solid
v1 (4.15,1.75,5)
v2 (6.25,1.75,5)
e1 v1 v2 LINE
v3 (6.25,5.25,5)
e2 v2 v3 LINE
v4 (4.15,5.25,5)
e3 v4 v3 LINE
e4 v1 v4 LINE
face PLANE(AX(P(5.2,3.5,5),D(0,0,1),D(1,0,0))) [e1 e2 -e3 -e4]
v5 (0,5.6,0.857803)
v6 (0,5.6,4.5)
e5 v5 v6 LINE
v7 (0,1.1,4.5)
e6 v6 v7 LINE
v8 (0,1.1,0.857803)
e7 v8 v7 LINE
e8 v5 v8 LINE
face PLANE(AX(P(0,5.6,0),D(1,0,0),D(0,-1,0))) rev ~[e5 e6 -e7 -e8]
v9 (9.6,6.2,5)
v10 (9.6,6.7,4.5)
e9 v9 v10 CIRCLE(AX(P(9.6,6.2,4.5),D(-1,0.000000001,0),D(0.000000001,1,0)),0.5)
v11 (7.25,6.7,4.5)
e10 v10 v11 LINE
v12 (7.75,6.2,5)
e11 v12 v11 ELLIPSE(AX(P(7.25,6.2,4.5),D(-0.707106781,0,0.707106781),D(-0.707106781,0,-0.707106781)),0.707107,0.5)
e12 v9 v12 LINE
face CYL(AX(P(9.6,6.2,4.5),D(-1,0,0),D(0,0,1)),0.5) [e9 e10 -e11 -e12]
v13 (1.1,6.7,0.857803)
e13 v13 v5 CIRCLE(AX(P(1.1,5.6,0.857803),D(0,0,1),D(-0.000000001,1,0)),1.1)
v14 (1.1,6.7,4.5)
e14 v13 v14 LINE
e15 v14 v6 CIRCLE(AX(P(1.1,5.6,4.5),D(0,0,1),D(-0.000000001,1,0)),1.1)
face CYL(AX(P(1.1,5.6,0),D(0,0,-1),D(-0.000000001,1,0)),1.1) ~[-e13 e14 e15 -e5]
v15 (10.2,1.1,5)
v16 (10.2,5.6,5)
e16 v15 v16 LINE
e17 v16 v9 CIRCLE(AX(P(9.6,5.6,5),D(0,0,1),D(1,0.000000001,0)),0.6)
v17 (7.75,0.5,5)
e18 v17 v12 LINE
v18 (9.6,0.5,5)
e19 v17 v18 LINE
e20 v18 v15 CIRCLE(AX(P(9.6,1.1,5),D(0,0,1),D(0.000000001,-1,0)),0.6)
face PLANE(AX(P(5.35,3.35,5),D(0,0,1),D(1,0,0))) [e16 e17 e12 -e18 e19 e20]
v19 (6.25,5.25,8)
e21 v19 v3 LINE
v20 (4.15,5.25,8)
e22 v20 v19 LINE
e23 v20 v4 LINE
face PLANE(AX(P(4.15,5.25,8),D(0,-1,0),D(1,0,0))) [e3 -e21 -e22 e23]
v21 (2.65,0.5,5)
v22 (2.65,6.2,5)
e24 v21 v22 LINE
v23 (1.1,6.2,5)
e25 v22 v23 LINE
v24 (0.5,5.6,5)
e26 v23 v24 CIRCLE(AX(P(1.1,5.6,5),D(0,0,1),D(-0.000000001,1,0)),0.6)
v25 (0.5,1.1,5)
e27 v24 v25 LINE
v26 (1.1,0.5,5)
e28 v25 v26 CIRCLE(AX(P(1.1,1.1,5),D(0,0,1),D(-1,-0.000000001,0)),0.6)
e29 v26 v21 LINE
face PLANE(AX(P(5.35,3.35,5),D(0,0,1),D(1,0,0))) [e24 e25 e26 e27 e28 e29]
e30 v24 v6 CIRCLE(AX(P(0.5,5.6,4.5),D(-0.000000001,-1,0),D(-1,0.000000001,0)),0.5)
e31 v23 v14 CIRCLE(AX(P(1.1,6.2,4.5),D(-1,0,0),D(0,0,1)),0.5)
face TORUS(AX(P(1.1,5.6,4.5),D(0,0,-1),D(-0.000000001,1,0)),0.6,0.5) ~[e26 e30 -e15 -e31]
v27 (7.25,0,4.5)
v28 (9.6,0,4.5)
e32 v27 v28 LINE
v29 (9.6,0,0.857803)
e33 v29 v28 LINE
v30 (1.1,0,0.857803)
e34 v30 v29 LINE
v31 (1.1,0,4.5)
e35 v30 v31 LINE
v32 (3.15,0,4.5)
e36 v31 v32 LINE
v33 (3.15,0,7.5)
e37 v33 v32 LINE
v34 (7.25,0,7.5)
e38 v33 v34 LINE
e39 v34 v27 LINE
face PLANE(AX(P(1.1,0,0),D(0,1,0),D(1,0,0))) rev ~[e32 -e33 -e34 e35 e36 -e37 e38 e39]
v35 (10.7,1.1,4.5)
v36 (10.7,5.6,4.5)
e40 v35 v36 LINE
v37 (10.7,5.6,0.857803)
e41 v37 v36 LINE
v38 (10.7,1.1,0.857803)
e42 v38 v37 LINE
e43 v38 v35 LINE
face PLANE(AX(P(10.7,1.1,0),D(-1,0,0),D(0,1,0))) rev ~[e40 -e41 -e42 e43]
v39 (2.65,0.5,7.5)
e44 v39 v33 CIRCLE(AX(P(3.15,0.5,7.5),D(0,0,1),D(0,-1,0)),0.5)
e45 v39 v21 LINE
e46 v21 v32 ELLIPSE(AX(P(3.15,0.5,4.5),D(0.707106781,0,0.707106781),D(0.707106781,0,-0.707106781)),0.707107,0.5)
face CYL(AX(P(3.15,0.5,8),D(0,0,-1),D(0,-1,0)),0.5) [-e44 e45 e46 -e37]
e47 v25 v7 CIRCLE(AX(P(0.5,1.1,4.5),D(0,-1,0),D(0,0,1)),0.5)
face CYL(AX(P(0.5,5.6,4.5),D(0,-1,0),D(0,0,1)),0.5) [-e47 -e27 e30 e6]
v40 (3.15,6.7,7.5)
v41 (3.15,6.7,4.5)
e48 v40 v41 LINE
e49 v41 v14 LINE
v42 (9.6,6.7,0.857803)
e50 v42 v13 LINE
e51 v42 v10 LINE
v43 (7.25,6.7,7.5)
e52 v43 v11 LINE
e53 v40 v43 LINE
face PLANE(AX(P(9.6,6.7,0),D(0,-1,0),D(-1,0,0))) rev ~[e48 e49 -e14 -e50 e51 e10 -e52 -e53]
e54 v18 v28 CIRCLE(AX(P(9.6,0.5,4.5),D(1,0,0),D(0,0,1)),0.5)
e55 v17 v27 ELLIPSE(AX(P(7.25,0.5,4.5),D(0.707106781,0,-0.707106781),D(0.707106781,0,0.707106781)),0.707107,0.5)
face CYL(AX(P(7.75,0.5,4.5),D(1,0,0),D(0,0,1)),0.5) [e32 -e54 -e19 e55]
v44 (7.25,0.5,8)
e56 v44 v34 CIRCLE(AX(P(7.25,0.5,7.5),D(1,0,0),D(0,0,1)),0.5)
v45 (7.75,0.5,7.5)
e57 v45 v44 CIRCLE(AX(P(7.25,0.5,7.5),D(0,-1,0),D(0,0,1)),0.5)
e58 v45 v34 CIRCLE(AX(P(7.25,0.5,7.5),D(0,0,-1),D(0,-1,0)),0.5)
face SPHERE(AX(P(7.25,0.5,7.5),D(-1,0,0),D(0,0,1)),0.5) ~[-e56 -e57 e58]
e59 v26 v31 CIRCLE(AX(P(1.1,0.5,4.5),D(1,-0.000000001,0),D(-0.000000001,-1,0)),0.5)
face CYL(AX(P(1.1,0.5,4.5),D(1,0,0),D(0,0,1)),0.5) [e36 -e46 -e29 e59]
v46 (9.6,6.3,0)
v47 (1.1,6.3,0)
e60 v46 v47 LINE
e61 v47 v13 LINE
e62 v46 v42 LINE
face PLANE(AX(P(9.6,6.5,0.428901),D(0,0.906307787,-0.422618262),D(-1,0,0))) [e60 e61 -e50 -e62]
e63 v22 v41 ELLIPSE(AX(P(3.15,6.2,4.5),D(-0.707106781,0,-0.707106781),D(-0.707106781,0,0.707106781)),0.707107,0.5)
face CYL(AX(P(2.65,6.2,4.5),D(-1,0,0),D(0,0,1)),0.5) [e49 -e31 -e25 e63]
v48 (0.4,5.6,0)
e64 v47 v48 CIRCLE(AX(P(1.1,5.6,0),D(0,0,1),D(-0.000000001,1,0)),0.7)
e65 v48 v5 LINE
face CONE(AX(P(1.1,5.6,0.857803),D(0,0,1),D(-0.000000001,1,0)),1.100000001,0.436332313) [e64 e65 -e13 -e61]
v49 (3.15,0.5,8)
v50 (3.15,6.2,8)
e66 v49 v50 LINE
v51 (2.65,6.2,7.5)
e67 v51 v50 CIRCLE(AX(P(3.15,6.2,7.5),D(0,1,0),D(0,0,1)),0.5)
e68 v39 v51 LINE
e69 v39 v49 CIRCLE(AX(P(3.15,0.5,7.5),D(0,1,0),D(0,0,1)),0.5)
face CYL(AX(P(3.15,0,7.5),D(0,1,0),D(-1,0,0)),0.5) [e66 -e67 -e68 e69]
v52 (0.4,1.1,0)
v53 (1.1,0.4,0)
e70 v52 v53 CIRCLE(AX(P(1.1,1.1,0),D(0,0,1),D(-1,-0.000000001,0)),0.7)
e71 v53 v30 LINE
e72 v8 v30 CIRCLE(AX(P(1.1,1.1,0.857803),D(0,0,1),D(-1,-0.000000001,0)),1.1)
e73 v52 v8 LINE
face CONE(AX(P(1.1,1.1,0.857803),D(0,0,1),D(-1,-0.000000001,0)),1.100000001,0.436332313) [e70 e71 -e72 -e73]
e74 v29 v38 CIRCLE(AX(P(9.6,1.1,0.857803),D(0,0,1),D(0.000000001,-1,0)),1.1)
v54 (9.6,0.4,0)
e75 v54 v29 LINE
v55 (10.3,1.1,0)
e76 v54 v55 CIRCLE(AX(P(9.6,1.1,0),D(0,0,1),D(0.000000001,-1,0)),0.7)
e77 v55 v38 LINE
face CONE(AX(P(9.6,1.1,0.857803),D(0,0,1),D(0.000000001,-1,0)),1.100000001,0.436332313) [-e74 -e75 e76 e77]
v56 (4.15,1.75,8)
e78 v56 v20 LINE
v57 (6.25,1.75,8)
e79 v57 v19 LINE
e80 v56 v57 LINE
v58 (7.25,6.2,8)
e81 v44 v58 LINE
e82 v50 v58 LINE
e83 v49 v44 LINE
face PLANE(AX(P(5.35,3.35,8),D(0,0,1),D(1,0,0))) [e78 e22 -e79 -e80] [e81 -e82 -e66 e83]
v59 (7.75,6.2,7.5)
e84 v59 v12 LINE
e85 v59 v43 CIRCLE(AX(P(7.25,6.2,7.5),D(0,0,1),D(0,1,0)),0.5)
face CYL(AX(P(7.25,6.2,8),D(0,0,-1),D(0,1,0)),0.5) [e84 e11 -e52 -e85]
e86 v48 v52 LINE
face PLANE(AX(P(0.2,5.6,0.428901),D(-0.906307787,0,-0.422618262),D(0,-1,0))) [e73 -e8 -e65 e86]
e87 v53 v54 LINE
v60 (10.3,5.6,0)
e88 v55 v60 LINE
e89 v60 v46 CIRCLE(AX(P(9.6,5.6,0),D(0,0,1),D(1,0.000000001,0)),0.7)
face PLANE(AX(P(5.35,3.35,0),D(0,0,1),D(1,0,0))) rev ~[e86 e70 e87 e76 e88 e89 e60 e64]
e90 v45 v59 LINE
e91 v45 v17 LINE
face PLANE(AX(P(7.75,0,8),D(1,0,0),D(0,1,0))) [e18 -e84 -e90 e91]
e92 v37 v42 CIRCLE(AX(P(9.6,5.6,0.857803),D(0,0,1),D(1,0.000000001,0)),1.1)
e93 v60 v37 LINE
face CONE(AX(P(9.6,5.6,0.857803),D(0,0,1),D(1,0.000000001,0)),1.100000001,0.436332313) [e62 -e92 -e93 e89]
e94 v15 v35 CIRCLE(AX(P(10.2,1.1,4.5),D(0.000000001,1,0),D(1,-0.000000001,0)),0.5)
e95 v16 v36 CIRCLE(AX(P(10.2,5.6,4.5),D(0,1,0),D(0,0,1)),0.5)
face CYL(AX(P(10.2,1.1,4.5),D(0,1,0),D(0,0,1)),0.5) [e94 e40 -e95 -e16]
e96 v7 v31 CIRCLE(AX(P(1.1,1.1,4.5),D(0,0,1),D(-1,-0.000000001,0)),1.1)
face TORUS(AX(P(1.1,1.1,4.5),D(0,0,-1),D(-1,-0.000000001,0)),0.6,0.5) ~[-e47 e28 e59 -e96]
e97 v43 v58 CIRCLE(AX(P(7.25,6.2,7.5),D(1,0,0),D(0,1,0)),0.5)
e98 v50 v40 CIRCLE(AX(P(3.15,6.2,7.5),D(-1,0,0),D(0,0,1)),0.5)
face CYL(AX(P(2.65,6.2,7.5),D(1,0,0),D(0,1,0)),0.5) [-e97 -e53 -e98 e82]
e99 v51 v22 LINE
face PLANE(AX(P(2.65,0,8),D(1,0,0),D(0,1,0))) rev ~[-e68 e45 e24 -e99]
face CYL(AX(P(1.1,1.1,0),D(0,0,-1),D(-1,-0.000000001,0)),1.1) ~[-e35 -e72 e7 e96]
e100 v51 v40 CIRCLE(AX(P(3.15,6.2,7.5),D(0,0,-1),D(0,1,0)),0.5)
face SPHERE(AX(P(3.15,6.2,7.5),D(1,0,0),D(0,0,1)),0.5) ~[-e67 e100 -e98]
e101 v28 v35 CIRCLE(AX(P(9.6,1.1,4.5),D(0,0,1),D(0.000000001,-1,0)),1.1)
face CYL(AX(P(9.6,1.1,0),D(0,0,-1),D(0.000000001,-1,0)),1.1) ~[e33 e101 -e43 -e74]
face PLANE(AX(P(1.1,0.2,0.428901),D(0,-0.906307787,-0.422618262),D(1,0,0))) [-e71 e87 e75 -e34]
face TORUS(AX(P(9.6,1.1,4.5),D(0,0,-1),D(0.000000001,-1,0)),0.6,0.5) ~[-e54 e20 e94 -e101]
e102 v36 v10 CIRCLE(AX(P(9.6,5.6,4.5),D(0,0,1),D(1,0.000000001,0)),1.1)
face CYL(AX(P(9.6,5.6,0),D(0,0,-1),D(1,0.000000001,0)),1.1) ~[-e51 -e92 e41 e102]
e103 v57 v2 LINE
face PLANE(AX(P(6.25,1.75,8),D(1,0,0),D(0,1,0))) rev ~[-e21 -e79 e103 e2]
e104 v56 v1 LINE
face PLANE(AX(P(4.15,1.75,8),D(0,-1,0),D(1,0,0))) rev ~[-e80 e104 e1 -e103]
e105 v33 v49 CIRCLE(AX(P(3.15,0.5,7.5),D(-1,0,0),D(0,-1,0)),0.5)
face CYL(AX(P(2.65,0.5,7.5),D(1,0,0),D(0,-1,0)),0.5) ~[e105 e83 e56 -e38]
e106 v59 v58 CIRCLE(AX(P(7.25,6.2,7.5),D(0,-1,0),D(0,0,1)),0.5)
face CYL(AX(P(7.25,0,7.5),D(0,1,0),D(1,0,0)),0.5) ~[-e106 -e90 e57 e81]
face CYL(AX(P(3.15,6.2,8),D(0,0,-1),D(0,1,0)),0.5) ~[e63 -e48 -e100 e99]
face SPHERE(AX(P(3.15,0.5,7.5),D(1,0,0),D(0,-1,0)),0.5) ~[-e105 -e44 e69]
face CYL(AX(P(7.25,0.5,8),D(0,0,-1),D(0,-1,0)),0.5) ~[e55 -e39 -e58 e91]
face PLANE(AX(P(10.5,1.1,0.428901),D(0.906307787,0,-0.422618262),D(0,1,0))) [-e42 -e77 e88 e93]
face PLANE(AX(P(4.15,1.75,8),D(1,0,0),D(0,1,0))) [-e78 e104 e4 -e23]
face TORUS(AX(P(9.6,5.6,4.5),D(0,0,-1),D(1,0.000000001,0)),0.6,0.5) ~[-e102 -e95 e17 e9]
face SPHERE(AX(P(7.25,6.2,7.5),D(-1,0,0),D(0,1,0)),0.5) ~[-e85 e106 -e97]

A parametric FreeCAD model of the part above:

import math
import FreeCAD as App
import Part
import Sketcher


def edges_at(feature, points):
    """Names of the edges that pass closest to the given points."""
    edges = feature.Shape.Edges
    near = lambda p: min(range(len(edges)), key=lambda i: edges[i].distToShape(Part.Vertex(*p))[0])
    return sorted({f"Edge{near(p) + 1}" for p in points})

doc = App.newDocument("Part")
body = doc.addObject("PartDesign::Body", "Body")

sketch1 = body.newObject("Sketcher::SketchObject", "Sketch")
sketch1.AttachmentSupport = (doc.getObject("XY_Plane"), [""])
sketch1.MapMode = "FlatFace"
sketch1.addGeometry([
    Part.LineSegment(App.Vector(1.1, 0, 0), App.Vector(9.6, 0, 0)),
    Part.ArcOfCircle(Part.Circle(App.Vector(9.6, 1.1, 0), App.Vector(0, 0, 1), 1.1), math.radians(-90), math.radians(0)),
    Part.LineSegment(App.Vector(10.7, 1.1, 0), App.Vector(10.7, 5.6, 0)),
    Part.ArcOfCircle(Part.Circle(App.Vector(9.6, 5.6, 0), App.Vector(0, 0, 1), 1.1), math.radians(0), math.radians(90)),
    Part.LineSegment(App.Vector(9.6, 6.7, 0), App.Vector(1.1, 6.7, 0)),
    Part.ArcOfCircle(Part.Circle(App.Vector(1.1, 5.6, 0), App.Vector(0, 0, 1), 1.1), math.radians(90), math.radians(180)),
    Part.LineSegment(App.Vector(0, 5.6, 0), App.Vector(0, 1.1, 0)),
    Part.ArcOfCircle(Part.Circle(App.Vector(1.1, 1.1, 0), App.Vector(0, 0, 1), 1.1), math.radians(-180), math.radians(-90)),
], False)
sketch1.addConstraint([
    Sketcher.Constraint("Tangent", 0, 2, 1, 1),
    Sketcher.Constraint("Tangent", 1, 2, 2, 1),
    Sketcher.Constraint("Tangent", 2, 2, 3, 1),
    Sketcher.Constraint("Tangent", 3, 2, 4, 1),
    Sketcher.Constraint("Tangent", 4, 2, 5, 1),
    Sketcher.Constraint("Tangent", 5, 2, 6, 1),
    Sketcher.Constraint("Tangent", 6, 2, 7, 1),
    Sketcher.Constraint("Tangent", 7, 2, 0, 1),
    Sketcher.Constraint("Horizontal", 0),
    Sketcher.Constraint("Vertical", 2),
    Sketcher.Constraint("Horizontal", 4),
    Sketcher.Constraint("Vertical", 6),
    Sketcher.Constraint("Equal", 1, 3),
    Sketcher.Constraint("Equal", 3, 5),
    Sketcher.Constraint("Equal", 5, 7),
    Sketcher.Constraint("PointOnObject", 0, 2, -1),
    Sketcher.Constraint("PointOnObject", 5, 2, -2),
    Sketcher.Constraint("Radius", 1, 1.1),
    Sketcher.Constraint("DistanceX", 0, 1, 0, 2, 8.5),
    Sketcher.Constraint("DistanceY", 2, 1, 2, 2, 4.5),
])
pad1 = body.newObject("PartDesign::Pad", "Pad")
pad1.Profile = sketch1
pad1.Length = 8

sketch2 = body.newObject("Sketcher::SketchObject", "Sketch001")
sketch2.AttachmentSupport = (doc.getObject("XY_Plane"), [""])
sketch2.MapMode = "FlatFace"
sketch2.AttachmentOffset = App.Placement(App.Vector(0, 0, 8), App.Rotation())
sketch2.addGeometry([
    Part.LineSegment(App.Vector(4.2, 5.2, 0), App.Vector(4.2, 1.8, 0)),
    Part.LineSegment(App.Vector(4.2, 1.8, 0), App.Vector(6.2, 1.8, 0)),
    Part.LineSegment(App.Vector(6.2, 1.8, 0), App.Vector(6.2, 5.2, 0)),
    Part.LineSegment(App.Vector(6.2, 5.2, 0), App.Vector(4.2, 5.2, 0)),
], False)
sketch2.addConstraint([
    Sketcher.Constraint("Coincident", 0, 2, 1, 1),
    Sketcher.Constraint("Coincident", 1, 2, 2, 1),
    Sketcher.Constraint("Coincident", 2, 2, 3, 1),
    Sketcher.Constraint("Coincident", 3, 2, 0, 1),
    Sketcher.Constraint("Vertical", 0),
    Sketcher.Constraint("Horizontal", 1),
    Sketcher.Constraint("Vertical", 2),
    Sketcher.Constraint("Horizontal", 3),
    Sketcher.Constraint("DistanceX", 1, 1, 1, 2, 2.1),
    Sketcher.Constraint("DistanceY", 0, 2, 0, 1, 3.5),
    Sketcher.Constraint("DistanceX", -1, 1, 0, 2, 4.15),
    Sketcher.Constraint("DistanceY", -1, 1, 0, 2, 1.75),
])
pocket1 = body.newObject("PartDesign::Pocket", "Pocket")
pocket1.Profile = sketch2
pocket1.Length = 3

sketch3 = body.newObject("Sketcher::SketchObject", "Sketch002")
sketch3.AttachmentSupport = (doc.getObject("XY_Plane"), [""])
sketch3.MapMode = "FlatFace"
sketch3.AttachmentOffset = App.Placement(App.Vector(0, 0, 8), App.Rotation())
sketch3.addGeometry([
    Part.LineSegment(App.Vector(-2, 9, 0), App.Vector(-2, -2, 0)),
    Part.LineSegment(App.Vector(-2, -2, 0), App.Vector(13, -2, 0)),
    Part.LineSegment(App.Vector(13, -2, 0), App.Vector(13, 9, 0)),
    Part.LineSegment(App.Vector(13, 9, 0), App.Vector(-2, 9, 0)),
    Part.LineSegment(App.Vector(8, 0, 0), App.Vector(3, 0, 0)),
    Part.LineSegment(App.Vector(3, 0, 0), App.Vector(3, 7, 0)),
    Part.LineSegment(App.Vector(3, 7, 0), App.Vector(8, 7, 0)),
    Part.LineSegment(App.Vector(8, 7, 0), App.Vector(8, 0, 0)),
], False)
sketch3.addConstraint([
    Sketcher.Constraint("Coincident", 0, 2, 1, 1),
    Sketcher.Constraint("Coincident", 1, 2, 2, 1),
    Sketcher.Constraint("Coincident", 2, 2, 3, 1),
    Sketcher.Constraint("Coincident", 3, 2, 0, 1),
    Sketcher.Constraint("Coincident", 4, 2, 5, 1),
    Sketcher.Constraint("Coincident", 5, 2, 6, 1),
    Sketcher.Constraint("Coincident", 6, 2, 7, 1),
    Sketcher.Constraint("Coincident", 7, 2, 4, 1),
    Sketcher.Constraint("Vertical", 0),
    Sketcher.Constraint("Horizontal", 1),
    Sketcher.Constraint("Vertical", 2),
    Sketcher.Constraint("Horizontal", 3),
    Sketcher.Constraint("Horizontal", 4),
    Sketcher.Constraint("Vertical", 5),
    Sketcher.Constraint("Horizontal", 6),
    Sketcher.Constraint("Vertical", 7),
    Sketcher.Constraint("PointOnObject", 4, 2, -1),
    Sketcher.Constraint("DistanceX", 4, 2, 4, 1, 5.1),
    Sketcher.Constraint("DistanceY", 5, 1, 5, 2, 6.7),
    Sketcher.Constraint("DistanceX", 1, 1, 1, 2, 15.69),
    Sketcher.Constraint("DistanceY", 0, 2, 0, 1, 11.69),
    Sketcher.Constraint("DistanceX", -1, 1, 4, 2, 2.65),
    Sketcher.Constraint("DistanceX", 0, 2, -1, 1, 2.495),
    Sketcher.Constraint("DistanceY", 0, 2, -1, 1, 2.495),
])
pocket2 = body.newObject("PartDesign::Pocket", "Pocket001")
pocket2.Profile = sketch3
pocket2.Length = 3
doc.recompute()

fillet = body.newObject("PartDesign::Fillet", "Fillet")
fillet.Base = (pocket2, edges_at(pocket2, [
    (5.2, 6.7, 8),
    (5.2, 0, 8),
    (10.7, 3.35, 5),
    (1.875, 6.7, 5),
    (0.322, 6.378, 5),
    (0, 3.35, 5),
    (0.322, 0.322, 5),
    (1.875, 0, 5),
    (8.675, 0, 5),
    (10.378, 0.322, 5),
    (10.378, 6.378, 5),
    (8.675, 6.7, 5),
    (7.75, 6.7, 6.5),
    (7.75, 3.35, 8),
    (7.75, 0, 6.5),
    (2.65, 0, 6.5),
    (2.65, 3.35, 8),
    (2.65, 6.7, 6.5),
]))
fillet.Radius = 0.5
doc.recompute()

chamfer = body.newObject("PartDesign::Chamfer", "Chamfer")
chamfer.Base = (fillet, edges_at(fillet, [
    (5.35, 6.7, 0),
    (10.378, 6.378, 0),
    (10.7, 3.35, 0),
    (10.378, 0.322, 0),
    (5.35, 0, 0),
    (0.322, 0.322, 0),
    (0, 3.35, 0),
    (0.322, 6.378, 0),
]))
chamfer.ChamferType = "Two distances"
chamfer.Size = 0.4
chamfer.Size2 = 0.857803

doc.recompute()
